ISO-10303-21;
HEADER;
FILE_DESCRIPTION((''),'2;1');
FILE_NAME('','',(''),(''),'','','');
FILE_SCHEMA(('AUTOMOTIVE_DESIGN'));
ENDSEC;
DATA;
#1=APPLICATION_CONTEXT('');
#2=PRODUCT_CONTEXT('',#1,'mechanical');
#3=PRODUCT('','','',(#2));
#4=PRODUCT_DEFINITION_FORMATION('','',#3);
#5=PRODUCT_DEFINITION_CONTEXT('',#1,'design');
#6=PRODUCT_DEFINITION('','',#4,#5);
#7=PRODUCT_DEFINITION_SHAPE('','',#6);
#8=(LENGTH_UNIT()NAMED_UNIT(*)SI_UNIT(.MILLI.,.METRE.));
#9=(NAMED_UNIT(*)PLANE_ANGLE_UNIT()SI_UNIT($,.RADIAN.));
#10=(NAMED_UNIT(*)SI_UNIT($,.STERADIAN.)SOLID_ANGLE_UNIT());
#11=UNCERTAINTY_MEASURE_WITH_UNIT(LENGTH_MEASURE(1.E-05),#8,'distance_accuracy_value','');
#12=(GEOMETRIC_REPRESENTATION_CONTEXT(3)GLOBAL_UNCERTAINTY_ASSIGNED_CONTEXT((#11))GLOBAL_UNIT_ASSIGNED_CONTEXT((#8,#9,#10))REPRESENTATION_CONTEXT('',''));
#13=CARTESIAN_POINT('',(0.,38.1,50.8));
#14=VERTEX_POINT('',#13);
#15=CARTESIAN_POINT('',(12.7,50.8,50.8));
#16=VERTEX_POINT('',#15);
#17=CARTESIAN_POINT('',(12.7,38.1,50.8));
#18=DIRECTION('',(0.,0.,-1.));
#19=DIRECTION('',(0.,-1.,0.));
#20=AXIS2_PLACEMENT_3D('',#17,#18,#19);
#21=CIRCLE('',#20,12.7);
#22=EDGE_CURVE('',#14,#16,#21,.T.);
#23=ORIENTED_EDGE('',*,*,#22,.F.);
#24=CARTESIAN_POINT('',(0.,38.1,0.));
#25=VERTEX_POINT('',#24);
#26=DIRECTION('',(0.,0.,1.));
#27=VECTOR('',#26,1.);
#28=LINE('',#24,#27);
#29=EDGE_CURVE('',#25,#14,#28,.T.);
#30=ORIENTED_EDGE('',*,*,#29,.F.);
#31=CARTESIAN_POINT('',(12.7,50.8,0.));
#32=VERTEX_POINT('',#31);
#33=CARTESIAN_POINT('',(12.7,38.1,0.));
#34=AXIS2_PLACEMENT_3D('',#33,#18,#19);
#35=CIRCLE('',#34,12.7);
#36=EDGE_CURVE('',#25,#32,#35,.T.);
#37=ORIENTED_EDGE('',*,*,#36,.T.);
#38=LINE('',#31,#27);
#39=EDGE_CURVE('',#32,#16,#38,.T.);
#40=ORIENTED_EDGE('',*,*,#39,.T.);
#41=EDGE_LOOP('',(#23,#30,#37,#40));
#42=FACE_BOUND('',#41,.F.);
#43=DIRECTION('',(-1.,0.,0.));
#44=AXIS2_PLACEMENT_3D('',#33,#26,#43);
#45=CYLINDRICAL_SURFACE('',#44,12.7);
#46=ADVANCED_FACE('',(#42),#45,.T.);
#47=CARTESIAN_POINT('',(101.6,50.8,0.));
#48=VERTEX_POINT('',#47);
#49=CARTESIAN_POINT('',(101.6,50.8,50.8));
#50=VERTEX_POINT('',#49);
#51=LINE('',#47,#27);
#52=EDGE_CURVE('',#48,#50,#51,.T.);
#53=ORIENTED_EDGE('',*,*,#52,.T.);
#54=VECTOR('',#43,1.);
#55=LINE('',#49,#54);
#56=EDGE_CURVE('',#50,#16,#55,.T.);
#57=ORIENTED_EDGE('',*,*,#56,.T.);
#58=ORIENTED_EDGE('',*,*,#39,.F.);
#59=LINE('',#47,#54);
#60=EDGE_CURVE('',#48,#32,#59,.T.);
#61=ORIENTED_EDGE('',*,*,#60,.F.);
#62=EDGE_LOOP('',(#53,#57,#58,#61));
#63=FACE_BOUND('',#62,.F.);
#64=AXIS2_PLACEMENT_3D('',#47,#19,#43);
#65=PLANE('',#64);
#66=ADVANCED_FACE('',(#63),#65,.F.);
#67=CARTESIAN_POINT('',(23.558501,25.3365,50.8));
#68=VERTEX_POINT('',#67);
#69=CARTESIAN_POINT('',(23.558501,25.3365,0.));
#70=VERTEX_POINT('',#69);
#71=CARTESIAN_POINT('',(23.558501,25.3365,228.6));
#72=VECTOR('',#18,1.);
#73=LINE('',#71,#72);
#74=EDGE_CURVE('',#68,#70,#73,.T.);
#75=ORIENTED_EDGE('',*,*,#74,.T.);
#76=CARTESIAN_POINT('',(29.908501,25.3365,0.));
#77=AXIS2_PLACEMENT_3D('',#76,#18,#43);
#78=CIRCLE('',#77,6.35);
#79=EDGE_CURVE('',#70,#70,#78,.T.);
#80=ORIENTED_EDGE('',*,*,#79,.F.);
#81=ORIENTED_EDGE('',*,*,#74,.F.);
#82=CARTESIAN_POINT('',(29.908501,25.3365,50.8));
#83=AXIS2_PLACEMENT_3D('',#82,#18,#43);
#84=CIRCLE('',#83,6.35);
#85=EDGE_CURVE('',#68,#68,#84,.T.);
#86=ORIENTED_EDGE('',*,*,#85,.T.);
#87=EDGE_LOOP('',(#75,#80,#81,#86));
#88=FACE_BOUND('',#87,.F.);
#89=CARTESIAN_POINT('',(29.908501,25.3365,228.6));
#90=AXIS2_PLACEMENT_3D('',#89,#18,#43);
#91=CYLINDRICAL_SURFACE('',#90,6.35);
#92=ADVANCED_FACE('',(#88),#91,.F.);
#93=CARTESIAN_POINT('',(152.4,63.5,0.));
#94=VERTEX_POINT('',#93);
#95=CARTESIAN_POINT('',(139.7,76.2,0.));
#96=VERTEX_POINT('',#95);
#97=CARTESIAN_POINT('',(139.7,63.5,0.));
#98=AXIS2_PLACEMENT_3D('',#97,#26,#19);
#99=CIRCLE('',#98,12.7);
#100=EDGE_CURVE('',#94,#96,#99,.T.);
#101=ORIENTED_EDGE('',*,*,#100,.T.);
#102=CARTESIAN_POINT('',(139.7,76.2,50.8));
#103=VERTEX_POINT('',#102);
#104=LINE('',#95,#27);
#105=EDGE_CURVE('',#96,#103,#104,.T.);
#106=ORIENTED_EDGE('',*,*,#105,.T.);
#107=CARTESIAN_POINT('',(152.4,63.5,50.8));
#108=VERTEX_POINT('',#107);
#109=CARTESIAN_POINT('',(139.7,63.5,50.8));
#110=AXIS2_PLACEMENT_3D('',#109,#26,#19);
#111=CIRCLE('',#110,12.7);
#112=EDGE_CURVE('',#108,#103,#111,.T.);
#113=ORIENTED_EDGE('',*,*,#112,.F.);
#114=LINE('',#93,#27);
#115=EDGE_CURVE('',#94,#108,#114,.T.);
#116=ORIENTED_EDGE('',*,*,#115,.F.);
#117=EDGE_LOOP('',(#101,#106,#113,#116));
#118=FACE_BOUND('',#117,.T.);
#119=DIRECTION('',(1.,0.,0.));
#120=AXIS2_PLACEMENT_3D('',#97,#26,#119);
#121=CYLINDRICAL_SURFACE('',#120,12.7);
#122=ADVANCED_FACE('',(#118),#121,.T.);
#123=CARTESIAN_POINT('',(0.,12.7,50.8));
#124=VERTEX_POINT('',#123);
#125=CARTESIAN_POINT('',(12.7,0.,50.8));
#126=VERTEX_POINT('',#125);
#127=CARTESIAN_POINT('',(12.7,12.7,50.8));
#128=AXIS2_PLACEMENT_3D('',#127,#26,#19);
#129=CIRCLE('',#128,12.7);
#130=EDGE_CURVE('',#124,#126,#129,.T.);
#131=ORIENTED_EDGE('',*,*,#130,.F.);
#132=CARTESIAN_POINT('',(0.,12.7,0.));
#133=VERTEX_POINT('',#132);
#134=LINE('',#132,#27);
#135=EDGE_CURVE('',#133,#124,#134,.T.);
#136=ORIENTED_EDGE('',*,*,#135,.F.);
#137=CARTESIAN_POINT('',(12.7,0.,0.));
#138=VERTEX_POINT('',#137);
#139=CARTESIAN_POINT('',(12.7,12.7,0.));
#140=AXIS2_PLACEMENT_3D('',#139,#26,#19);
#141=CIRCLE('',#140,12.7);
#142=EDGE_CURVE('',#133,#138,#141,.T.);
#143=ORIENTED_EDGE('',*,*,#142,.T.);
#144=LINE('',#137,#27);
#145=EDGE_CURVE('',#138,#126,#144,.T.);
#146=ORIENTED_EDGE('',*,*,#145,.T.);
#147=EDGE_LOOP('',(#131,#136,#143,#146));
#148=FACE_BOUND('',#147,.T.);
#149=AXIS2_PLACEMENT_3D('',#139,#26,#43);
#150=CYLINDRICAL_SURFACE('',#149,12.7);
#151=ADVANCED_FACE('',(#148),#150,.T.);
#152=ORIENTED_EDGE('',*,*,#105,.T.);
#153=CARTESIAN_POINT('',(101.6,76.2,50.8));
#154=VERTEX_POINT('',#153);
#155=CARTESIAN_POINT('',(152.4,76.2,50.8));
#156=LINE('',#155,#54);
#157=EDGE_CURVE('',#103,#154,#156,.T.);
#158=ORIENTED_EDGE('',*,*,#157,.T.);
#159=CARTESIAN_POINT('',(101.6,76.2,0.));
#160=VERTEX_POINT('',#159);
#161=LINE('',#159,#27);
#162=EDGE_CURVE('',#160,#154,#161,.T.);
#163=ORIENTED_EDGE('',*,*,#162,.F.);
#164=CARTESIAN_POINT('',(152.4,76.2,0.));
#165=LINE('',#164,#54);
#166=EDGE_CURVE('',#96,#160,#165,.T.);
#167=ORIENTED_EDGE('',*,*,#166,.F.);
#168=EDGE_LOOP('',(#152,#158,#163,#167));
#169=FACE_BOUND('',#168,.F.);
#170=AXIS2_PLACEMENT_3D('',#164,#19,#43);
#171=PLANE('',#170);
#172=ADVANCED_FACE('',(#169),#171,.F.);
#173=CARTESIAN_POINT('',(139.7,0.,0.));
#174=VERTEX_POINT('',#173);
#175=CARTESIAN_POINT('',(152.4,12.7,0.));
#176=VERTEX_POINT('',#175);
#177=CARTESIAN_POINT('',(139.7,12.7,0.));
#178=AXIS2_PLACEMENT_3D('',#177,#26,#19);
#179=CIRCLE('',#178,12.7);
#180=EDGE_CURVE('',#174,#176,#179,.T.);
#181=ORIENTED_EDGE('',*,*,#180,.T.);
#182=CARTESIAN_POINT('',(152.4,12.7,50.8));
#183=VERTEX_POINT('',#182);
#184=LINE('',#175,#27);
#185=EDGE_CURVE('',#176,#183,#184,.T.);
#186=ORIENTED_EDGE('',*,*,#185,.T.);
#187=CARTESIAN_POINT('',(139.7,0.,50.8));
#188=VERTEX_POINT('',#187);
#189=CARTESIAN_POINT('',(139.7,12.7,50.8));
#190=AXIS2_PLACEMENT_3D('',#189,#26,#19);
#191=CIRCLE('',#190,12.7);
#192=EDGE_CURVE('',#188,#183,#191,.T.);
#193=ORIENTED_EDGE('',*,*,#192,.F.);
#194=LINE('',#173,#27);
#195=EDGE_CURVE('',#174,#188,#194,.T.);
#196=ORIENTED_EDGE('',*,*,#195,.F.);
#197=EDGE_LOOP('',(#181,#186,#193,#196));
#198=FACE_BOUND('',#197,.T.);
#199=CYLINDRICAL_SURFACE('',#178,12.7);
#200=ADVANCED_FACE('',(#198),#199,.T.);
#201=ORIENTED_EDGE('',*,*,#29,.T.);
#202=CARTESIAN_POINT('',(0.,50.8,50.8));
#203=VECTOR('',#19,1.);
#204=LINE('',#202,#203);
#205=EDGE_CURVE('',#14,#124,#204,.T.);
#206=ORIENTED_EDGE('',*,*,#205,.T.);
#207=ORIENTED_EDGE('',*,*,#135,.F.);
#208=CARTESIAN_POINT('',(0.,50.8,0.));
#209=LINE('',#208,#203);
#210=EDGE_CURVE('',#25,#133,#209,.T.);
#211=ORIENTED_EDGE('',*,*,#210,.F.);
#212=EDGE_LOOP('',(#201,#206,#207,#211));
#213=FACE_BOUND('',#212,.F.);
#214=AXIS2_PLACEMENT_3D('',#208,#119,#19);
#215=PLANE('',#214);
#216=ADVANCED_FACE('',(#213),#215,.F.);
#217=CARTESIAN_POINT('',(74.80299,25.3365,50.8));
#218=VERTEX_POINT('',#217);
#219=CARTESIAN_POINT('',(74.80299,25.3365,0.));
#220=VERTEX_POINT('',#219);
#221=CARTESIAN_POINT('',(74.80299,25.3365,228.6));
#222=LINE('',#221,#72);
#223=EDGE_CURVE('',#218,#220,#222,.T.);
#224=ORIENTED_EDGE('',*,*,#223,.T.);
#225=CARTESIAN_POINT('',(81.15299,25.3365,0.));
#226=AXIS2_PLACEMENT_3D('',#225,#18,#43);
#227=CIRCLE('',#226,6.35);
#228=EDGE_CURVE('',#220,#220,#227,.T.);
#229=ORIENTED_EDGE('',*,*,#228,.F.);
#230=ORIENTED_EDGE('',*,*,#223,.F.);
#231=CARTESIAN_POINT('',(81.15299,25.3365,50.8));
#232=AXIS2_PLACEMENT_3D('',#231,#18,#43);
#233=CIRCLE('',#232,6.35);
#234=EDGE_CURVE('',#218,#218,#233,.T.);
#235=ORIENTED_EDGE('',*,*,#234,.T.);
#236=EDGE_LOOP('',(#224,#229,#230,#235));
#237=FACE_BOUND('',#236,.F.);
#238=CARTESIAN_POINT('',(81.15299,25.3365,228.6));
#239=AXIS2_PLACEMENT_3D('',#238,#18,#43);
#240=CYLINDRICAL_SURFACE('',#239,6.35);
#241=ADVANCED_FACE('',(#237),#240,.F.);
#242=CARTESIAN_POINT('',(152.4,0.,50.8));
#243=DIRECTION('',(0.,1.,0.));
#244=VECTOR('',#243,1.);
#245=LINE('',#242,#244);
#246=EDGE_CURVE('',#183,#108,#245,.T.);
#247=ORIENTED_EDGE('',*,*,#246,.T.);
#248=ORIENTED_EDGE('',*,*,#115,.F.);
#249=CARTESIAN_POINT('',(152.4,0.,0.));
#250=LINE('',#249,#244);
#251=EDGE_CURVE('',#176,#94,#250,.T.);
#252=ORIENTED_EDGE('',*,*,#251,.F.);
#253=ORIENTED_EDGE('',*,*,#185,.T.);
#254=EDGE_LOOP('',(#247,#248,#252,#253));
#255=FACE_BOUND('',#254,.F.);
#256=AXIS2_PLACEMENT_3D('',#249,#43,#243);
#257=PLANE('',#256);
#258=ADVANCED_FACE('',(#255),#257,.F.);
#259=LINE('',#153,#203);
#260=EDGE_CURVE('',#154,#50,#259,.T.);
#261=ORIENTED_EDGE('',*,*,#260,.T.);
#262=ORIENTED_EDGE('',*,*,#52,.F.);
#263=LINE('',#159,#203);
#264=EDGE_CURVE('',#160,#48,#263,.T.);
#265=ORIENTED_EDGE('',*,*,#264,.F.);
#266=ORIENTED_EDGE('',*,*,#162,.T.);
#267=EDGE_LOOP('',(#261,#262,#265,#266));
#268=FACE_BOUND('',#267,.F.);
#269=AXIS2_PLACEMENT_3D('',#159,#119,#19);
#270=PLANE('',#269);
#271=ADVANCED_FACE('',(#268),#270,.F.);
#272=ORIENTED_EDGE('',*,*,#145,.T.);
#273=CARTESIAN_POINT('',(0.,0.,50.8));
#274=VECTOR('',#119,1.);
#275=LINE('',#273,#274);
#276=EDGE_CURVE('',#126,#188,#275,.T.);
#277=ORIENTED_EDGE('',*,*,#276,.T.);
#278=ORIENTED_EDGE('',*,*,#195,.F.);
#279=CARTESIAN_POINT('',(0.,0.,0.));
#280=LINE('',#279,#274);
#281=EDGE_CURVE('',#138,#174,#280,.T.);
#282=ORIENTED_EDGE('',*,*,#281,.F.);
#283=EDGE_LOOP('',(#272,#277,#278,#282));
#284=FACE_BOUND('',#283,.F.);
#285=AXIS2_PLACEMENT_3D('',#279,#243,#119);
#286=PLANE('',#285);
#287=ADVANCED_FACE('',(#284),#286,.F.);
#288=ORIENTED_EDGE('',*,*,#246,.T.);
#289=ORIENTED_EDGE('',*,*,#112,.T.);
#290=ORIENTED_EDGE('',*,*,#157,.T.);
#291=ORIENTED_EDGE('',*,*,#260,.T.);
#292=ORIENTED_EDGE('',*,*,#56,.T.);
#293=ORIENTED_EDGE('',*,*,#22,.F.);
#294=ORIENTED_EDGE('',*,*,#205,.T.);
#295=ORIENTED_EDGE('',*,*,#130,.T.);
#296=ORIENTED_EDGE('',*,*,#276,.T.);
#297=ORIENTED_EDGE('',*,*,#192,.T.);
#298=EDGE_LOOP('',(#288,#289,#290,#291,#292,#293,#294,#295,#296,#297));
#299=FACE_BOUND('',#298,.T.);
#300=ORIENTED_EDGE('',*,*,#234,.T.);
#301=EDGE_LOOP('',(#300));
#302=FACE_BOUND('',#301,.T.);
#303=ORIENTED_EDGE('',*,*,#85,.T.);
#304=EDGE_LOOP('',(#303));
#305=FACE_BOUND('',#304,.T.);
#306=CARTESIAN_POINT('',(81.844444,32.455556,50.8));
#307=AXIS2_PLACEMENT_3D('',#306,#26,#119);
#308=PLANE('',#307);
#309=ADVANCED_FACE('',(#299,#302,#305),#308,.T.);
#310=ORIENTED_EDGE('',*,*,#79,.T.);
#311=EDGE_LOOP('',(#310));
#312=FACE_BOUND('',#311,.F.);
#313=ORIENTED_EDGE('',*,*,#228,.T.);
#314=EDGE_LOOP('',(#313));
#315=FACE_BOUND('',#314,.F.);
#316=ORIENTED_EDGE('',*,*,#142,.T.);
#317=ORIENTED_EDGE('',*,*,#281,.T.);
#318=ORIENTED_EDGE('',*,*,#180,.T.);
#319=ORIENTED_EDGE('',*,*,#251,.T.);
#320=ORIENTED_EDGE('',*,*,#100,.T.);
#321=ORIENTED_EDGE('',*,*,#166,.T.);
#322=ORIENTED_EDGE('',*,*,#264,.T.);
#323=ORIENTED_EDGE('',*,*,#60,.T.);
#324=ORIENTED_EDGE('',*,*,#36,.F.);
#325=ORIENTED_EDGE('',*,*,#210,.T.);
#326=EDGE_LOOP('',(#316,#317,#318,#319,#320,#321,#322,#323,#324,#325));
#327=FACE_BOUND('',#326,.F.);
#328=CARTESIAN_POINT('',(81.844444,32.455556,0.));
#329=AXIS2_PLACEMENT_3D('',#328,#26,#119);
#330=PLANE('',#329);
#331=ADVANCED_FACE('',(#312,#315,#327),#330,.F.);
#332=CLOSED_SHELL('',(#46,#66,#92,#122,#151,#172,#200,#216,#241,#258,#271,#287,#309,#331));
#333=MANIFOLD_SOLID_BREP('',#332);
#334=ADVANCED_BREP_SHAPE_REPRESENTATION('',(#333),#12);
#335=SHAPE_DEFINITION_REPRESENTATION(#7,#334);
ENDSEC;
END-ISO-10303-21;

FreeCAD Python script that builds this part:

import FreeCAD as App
import Part
import Sketcher
Q = App.Units.Quantity


def edges_at(feature, points):
    """Names of the edges that pass closest to the given points."""
    edges = feature.Shape.Edges
    near = lambda p: min(range(len(edges)), key=lambda i: edges[i].distToShape(Part.Vertex(*p))[0])
    return sorted({f"Edge{near(p) + 1}" for p in points})


def add_polygon(sketch, points):
    """Adds a closed chain of lines whose ends are joined by coincident constraints."""
    first, n = sketch.GeometryCount, len(points)
    for a, b in zip(points, points[1:] + points[:1]):
        sketch.addGeometry(Part.LineSegment(App.Vector(*a, 0), App.Vector(*b, 0)), False)
    for i in range(n):
        sketch.addConstraint(Sketcher.Constraint("Coincident", first + i, 2, first + (i + 1) % n, 1))

doc = App.newDocument("Part")
params = doc.addObject("Spreadsheet::Sheet", "Params")
for row, (alias, value) in enumerate([
    ("sketch1_width", "6 in"),
    ("sketch1_width2", "2 in"),
    ("sketch1_height", "3 in"),
    ("pad1_length", "2 in"),
    ("fillet_radius", "0.5 in"),
    ("fillet2_radius", "0.5 in"),
    ("fillet3_radius", "0.5 in"),
    ("sketch2_diameter", "0.5 in"),
    ("hole_diameter", "0.5 in"),
], start=1):
    params.set(f"A{row}", alias)
    params.set(f"B{row}", "=" + value)
    params.setAlias(f"B{row}", alias)

body = doc.addObject("PartDesign::Body", "Body")

# Sketch on XY plane
sketch1 = doc.addObject("Sketcher::SketchObject", "Sketch")
body.addObject(sketch1)
sketch1.AttachmentSupport = (doc.XY_Plane, [""])
sketch1.MapMode = "FlatFace"
add_polygon(sketch1, [(0, 50.8), (0, 0), (152.4, 0), (152.4, 76.2), (101.6, 76.2), (101.6, 50.8)])  # lines 0-5
sketch1.addConstraint(Sketcher.Constraint("Vertical", 0))
sketch1.addConstraint(Sketcher.Constraint("Horizontal", 1))
sketch1.addConstraint(Sketcher.Constraint("Vertical", 2))
sketch1.addConstraint(Sketcher.Constraint("Horizontal", 3))
sketch1.addConstraint(Sketcher.Constraint("Vertical", 4))
sketch1.addConstraint(Sketcher.Constraint("Horizontal", 5))
sketch1.addConstraint(Sketcher.Constraint("Coincident", 0, 2, -1, 1))
sketch1.addConstraint(Sketcher.Constraint("Equal", 3, 0))
sketch1.addConstraint(Sketcher.Constraint("DistanceX", 1, 1, 1, 2, Q("6 in")))
sketch1.addConstraint(Sketcher.Constraint("DistanceX", 3, 2, 3, 1, Q("2 in")))
sketch1.addConstraint(Sketcher.Constraint("DistanceY", 2, 1, 2, 2, Q("3 in")))
sketch1.setExpression("Constraints[14]", "Params.sketch1_width")
sketch1.setExpression("Constraints[15]", "Params.sketch1_width2")
sketch1.setExpression("Constraints[16]", "Params.sketch1_height")
pad1 = doc.addObject("PartDesign::Pad", "Pad")
body.addObject(pad1)
pad1.Profile = sketch1
pad1.setExpression("Length", "Params.pad1_length")
doc.recompute()

fillet = doc.addObject("PartDesign::Fillet", "Fillet")
body.addObject(fillet)
fillet.Base = (pad1, edges_at(pad1, [(152.4, 76.2, 25.4)]))
fillet.setExpression("Radius", "Params.fillet_radius")
doc.recompute()

fillet2 = doc.addObject("PartDesign::Fillet", "Fillet001")
body.addObject(fillet2)
fillet2.Base = (fillet, edges_at(fillet, [(0, 50.8, 25.4)]))
fillet2.setExpression("Radius", "Params.fillet2_radius")
doc.recompute()

fillet3 = doc.addObject("PartDesign::Fillet", "Fillet002")
body.addObject(fillet3)
fillet3.Base = (fillet2, edges_at(fillet2, [(0, 0, 25.4), (152.4, 0, 25.4)]))
fillet3.setExpression("Radius", "Params.fillet3_radius")

# Sketch on XY plane
sketch2 = doc.addObject("Sketcher::SketchObject", "Sketch001")
body.addObject(sketch2)
sketch2.AttachmentSupport = (doc.XY_Plane, [""])
sketch2.MapMode = "FlatFace"
sketch2.AttachmentOffset = App.Placement(App.Vector(0, 0, 2 * 25.4), App.Rotation())
sketch2.addGeometry(Part.Circle(App.Vector(29.908501, 25.3365, 0), App.Vector(0, 0, 1), 6.35), False)
sketch2.addGeometry(Part.Circle(App.Vector(81.15299, 25.3365, 0), App.Vector(0, 0, 1), 6.35), False)
sketch2.addConstraint(Sketcher.Constraint("Equal", 0, 1))
sketch2.addConstraint(Sketcher.Constraint("Horizontal", 0, 3, 1, 3))
sketch2.addConstraint(Sketcher.Constraint("Diameter", 0, Q("0.5 in")))
sketch2.addConstraint(Sketcher.Constraint("DistanceX", -1, 1, 0, 3, Q("1.1775 in")))
sketch2.addConstraint(Sketcher.Constraint("DistanceY", -1, 1, 0, 3, Q("0.9975 in")))
sketch2.addConstraint(Sketcher.Constraint("DistanceX", -1, 1, 1, 3, 81.15299))
sketch2.setExpression("Constraints[2]", "Params.sketch2_diameter")
doc.recompute()
hole = doc.addObject("PartDesign::Hole", "Hole")
body.addObject(hole)
hole.Profile = sketch2
hole.ThreadType = "None"
hole.setExpression("Diameter", "Params.hole_diameter")
hole.DepthType = "ThroughAll"

doc.recompute()
